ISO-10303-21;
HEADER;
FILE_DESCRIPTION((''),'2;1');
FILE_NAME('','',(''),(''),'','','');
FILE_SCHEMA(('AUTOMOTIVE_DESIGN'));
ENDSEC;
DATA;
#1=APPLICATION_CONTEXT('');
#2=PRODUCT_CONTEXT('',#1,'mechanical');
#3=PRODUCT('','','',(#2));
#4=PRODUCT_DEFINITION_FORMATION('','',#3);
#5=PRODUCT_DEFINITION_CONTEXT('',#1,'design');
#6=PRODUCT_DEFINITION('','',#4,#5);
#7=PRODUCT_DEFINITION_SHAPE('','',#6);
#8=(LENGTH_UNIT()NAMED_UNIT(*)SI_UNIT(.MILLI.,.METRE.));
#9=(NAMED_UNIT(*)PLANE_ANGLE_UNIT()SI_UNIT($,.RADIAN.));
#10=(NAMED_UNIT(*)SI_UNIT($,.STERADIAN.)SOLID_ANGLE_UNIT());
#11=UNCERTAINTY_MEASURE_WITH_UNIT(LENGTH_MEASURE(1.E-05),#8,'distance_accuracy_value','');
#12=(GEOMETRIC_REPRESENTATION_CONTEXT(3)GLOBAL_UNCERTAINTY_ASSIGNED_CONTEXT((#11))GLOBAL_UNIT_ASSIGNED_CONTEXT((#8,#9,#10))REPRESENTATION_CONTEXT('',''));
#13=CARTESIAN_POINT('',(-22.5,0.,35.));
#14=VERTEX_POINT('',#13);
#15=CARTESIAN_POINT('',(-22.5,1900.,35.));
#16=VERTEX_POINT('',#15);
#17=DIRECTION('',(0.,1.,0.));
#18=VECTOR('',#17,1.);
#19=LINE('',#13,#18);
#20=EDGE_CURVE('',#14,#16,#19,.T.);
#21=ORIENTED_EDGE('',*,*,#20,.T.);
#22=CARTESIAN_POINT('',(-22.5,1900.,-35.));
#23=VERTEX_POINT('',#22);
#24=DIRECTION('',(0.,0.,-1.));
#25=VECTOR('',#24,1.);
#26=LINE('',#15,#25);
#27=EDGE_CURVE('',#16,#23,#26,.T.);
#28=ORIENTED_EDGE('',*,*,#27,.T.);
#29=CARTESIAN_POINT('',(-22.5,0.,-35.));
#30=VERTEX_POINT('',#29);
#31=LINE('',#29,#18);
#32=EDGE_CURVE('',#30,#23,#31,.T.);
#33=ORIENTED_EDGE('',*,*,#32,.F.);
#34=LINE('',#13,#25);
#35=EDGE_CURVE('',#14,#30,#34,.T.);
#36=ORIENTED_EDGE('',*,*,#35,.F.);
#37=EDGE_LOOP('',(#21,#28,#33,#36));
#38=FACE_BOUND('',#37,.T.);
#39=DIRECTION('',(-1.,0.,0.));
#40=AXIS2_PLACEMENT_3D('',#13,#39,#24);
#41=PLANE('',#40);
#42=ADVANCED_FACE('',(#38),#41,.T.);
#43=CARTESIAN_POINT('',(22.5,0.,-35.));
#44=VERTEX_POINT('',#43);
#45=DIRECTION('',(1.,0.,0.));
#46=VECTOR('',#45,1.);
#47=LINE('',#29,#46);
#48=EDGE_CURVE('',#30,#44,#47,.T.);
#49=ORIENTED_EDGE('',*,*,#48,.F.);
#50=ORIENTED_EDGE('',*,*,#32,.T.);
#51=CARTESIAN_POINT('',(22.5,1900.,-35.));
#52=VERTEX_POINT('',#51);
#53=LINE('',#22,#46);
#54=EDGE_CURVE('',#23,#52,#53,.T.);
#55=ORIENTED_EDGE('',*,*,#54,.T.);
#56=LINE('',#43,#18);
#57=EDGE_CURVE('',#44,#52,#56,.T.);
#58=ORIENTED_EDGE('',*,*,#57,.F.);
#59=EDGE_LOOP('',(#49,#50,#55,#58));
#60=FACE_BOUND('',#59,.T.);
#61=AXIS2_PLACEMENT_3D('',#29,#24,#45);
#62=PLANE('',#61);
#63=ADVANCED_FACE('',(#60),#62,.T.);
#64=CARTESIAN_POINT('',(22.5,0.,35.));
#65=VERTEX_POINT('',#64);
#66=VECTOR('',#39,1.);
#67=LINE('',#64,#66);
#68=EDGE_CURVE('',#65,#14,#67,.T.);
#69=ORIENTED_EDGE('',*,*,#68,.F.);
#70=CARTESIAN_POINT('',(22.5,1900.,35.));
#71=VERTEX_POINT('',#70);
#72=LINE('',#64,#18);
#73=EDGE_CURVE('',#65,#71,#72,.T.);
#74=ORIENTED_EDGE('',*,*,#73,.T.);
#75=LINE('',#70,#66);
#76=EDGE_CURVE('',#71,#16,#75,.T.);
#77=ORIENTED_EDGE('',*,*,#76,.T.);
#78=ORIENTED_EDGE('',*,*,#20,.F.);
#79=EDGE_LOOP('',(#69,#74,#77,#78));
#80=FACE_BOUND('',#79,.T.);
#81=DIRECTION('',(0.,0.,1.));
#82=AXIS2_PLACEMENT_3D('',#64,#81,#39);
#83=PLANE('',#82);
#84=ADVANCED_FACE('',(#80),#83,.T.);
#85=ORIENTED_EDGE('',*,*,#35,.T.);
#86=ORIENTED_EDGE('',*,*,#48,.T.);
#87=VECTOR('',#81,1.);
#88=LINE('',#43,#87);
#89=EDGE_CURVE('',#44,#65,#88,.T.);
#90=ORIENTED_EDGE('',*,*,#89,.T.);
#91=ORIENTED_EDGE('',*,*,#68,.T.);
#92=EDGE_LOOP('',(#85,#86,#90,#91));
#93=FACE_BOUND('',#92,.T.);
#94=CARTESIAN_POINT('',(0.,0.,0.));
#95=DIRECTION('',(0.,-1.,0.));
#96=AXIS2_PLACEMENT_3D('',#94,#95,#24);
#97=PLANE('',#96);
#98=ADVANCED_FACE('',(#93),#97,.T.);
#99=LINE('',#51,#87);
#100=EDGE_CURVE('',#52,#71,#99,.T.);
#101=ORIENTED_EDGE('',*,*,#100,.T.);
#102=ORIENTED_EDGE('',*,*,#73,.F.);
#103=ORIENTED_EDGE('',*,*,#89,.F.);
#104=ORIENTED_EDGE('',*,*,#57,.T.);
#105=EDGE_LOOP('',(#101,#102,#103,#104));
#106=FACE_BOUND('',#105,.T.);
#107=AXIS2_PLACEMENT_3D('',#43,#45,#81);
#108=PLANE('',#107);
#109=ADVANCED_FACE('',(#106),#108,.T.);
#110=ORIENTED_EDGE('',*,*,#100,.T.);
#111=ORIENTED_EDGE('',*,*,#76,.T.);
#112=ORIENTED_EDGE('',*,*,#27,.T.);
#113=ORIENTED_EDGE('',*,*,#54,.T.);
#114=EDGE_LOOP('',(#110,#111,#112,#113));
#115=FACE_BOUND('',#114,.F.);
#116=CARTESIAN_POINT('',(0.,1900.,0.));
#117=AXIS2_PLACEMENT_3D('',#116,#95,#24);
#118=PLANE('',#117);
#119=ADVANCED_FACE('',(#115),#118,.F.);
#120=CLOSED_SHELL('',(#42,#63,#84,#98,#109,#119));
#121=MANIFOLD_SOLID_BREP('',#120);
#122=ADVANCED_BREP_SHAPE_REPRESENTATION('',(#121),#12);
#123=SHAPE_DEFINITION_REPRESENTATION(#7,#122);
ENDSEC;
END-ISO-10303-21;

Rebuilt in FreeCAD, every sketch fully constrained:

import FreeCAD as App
import Part
import Sketcher
from FreeCAD import Vector
Q = App.Units.Quantity

doc = App.newDocument("Part")
body = doc.addObject("PartDesign::Body", "Body")

# Sketch on XZ plane
sketch1 = body.newObject("Sketcher::SketchObject", "Sketch")
sketch1.AttachmentSupport = (doc.getObject("XZ_Plane"), [""])
sketch1.MapMode = "FlatFace"
sketch1.addGeometry(Part.LineSegment(Vector(-22, 35, 0), Vector(-22, -35, 0)), False)
sketch1.addGeometry(Part.LineSegment(Vector(-22, -35, 0), Vector(22, -35, 0)), False)
sketch1.addGeometry(Part.LineSegment(Vector(22, -35, 0), Vector(22, 35, 0)), False)
sketch1.addGeometry(Part.LineSegment(Vector(22, 35, 0), Vector(-22, 35, 0)), False)
sketch1.addConstraint(Sketcher.Constraint("Coincident", 0, 2, 1, 1))
sketch1.addConstraint(Sketcher.Constraint("Coincident", 1, 2, 2, 1))
sketch1.addConstraint(Sketcher.Constraint("Coincident", 2, 2, 3, 1))
sketch1.addConstraint(Sketcher.Constraint("Coincident", 3, 2, 0, 1))
sketch1.addConstraint(Sketcher.Constraint("Vertical", 0))
sketch1.addConstraint(Sketcher.Constraint("Horizontal", 1))
sketch1.addConstraint(Sketcher.Constraint("Vertical", 2))
sketch1.addConstraint(Sketcher.Constraint("Horizontal", 3))
sketch1.addConstraint(Sketcher.Constraint("Symmetric", 0, 2, 2, 2, -1, 1))
sketch1.addConstraint(Sketcher.Constraint("DistanceX", 1, 1, 1, 2, Q("45 mm")))
sketch1.addConstraint(Sketcher.Constraint("DistanceY", 0, 2, 0, 1, Q("70 mm")))
pad1 = body.newObject("PartDesign::Pad", "Pad")
pad1.Profile = sketch1
pad1.Length = 1900
pad1.Reversed = True

doc.recompute()
